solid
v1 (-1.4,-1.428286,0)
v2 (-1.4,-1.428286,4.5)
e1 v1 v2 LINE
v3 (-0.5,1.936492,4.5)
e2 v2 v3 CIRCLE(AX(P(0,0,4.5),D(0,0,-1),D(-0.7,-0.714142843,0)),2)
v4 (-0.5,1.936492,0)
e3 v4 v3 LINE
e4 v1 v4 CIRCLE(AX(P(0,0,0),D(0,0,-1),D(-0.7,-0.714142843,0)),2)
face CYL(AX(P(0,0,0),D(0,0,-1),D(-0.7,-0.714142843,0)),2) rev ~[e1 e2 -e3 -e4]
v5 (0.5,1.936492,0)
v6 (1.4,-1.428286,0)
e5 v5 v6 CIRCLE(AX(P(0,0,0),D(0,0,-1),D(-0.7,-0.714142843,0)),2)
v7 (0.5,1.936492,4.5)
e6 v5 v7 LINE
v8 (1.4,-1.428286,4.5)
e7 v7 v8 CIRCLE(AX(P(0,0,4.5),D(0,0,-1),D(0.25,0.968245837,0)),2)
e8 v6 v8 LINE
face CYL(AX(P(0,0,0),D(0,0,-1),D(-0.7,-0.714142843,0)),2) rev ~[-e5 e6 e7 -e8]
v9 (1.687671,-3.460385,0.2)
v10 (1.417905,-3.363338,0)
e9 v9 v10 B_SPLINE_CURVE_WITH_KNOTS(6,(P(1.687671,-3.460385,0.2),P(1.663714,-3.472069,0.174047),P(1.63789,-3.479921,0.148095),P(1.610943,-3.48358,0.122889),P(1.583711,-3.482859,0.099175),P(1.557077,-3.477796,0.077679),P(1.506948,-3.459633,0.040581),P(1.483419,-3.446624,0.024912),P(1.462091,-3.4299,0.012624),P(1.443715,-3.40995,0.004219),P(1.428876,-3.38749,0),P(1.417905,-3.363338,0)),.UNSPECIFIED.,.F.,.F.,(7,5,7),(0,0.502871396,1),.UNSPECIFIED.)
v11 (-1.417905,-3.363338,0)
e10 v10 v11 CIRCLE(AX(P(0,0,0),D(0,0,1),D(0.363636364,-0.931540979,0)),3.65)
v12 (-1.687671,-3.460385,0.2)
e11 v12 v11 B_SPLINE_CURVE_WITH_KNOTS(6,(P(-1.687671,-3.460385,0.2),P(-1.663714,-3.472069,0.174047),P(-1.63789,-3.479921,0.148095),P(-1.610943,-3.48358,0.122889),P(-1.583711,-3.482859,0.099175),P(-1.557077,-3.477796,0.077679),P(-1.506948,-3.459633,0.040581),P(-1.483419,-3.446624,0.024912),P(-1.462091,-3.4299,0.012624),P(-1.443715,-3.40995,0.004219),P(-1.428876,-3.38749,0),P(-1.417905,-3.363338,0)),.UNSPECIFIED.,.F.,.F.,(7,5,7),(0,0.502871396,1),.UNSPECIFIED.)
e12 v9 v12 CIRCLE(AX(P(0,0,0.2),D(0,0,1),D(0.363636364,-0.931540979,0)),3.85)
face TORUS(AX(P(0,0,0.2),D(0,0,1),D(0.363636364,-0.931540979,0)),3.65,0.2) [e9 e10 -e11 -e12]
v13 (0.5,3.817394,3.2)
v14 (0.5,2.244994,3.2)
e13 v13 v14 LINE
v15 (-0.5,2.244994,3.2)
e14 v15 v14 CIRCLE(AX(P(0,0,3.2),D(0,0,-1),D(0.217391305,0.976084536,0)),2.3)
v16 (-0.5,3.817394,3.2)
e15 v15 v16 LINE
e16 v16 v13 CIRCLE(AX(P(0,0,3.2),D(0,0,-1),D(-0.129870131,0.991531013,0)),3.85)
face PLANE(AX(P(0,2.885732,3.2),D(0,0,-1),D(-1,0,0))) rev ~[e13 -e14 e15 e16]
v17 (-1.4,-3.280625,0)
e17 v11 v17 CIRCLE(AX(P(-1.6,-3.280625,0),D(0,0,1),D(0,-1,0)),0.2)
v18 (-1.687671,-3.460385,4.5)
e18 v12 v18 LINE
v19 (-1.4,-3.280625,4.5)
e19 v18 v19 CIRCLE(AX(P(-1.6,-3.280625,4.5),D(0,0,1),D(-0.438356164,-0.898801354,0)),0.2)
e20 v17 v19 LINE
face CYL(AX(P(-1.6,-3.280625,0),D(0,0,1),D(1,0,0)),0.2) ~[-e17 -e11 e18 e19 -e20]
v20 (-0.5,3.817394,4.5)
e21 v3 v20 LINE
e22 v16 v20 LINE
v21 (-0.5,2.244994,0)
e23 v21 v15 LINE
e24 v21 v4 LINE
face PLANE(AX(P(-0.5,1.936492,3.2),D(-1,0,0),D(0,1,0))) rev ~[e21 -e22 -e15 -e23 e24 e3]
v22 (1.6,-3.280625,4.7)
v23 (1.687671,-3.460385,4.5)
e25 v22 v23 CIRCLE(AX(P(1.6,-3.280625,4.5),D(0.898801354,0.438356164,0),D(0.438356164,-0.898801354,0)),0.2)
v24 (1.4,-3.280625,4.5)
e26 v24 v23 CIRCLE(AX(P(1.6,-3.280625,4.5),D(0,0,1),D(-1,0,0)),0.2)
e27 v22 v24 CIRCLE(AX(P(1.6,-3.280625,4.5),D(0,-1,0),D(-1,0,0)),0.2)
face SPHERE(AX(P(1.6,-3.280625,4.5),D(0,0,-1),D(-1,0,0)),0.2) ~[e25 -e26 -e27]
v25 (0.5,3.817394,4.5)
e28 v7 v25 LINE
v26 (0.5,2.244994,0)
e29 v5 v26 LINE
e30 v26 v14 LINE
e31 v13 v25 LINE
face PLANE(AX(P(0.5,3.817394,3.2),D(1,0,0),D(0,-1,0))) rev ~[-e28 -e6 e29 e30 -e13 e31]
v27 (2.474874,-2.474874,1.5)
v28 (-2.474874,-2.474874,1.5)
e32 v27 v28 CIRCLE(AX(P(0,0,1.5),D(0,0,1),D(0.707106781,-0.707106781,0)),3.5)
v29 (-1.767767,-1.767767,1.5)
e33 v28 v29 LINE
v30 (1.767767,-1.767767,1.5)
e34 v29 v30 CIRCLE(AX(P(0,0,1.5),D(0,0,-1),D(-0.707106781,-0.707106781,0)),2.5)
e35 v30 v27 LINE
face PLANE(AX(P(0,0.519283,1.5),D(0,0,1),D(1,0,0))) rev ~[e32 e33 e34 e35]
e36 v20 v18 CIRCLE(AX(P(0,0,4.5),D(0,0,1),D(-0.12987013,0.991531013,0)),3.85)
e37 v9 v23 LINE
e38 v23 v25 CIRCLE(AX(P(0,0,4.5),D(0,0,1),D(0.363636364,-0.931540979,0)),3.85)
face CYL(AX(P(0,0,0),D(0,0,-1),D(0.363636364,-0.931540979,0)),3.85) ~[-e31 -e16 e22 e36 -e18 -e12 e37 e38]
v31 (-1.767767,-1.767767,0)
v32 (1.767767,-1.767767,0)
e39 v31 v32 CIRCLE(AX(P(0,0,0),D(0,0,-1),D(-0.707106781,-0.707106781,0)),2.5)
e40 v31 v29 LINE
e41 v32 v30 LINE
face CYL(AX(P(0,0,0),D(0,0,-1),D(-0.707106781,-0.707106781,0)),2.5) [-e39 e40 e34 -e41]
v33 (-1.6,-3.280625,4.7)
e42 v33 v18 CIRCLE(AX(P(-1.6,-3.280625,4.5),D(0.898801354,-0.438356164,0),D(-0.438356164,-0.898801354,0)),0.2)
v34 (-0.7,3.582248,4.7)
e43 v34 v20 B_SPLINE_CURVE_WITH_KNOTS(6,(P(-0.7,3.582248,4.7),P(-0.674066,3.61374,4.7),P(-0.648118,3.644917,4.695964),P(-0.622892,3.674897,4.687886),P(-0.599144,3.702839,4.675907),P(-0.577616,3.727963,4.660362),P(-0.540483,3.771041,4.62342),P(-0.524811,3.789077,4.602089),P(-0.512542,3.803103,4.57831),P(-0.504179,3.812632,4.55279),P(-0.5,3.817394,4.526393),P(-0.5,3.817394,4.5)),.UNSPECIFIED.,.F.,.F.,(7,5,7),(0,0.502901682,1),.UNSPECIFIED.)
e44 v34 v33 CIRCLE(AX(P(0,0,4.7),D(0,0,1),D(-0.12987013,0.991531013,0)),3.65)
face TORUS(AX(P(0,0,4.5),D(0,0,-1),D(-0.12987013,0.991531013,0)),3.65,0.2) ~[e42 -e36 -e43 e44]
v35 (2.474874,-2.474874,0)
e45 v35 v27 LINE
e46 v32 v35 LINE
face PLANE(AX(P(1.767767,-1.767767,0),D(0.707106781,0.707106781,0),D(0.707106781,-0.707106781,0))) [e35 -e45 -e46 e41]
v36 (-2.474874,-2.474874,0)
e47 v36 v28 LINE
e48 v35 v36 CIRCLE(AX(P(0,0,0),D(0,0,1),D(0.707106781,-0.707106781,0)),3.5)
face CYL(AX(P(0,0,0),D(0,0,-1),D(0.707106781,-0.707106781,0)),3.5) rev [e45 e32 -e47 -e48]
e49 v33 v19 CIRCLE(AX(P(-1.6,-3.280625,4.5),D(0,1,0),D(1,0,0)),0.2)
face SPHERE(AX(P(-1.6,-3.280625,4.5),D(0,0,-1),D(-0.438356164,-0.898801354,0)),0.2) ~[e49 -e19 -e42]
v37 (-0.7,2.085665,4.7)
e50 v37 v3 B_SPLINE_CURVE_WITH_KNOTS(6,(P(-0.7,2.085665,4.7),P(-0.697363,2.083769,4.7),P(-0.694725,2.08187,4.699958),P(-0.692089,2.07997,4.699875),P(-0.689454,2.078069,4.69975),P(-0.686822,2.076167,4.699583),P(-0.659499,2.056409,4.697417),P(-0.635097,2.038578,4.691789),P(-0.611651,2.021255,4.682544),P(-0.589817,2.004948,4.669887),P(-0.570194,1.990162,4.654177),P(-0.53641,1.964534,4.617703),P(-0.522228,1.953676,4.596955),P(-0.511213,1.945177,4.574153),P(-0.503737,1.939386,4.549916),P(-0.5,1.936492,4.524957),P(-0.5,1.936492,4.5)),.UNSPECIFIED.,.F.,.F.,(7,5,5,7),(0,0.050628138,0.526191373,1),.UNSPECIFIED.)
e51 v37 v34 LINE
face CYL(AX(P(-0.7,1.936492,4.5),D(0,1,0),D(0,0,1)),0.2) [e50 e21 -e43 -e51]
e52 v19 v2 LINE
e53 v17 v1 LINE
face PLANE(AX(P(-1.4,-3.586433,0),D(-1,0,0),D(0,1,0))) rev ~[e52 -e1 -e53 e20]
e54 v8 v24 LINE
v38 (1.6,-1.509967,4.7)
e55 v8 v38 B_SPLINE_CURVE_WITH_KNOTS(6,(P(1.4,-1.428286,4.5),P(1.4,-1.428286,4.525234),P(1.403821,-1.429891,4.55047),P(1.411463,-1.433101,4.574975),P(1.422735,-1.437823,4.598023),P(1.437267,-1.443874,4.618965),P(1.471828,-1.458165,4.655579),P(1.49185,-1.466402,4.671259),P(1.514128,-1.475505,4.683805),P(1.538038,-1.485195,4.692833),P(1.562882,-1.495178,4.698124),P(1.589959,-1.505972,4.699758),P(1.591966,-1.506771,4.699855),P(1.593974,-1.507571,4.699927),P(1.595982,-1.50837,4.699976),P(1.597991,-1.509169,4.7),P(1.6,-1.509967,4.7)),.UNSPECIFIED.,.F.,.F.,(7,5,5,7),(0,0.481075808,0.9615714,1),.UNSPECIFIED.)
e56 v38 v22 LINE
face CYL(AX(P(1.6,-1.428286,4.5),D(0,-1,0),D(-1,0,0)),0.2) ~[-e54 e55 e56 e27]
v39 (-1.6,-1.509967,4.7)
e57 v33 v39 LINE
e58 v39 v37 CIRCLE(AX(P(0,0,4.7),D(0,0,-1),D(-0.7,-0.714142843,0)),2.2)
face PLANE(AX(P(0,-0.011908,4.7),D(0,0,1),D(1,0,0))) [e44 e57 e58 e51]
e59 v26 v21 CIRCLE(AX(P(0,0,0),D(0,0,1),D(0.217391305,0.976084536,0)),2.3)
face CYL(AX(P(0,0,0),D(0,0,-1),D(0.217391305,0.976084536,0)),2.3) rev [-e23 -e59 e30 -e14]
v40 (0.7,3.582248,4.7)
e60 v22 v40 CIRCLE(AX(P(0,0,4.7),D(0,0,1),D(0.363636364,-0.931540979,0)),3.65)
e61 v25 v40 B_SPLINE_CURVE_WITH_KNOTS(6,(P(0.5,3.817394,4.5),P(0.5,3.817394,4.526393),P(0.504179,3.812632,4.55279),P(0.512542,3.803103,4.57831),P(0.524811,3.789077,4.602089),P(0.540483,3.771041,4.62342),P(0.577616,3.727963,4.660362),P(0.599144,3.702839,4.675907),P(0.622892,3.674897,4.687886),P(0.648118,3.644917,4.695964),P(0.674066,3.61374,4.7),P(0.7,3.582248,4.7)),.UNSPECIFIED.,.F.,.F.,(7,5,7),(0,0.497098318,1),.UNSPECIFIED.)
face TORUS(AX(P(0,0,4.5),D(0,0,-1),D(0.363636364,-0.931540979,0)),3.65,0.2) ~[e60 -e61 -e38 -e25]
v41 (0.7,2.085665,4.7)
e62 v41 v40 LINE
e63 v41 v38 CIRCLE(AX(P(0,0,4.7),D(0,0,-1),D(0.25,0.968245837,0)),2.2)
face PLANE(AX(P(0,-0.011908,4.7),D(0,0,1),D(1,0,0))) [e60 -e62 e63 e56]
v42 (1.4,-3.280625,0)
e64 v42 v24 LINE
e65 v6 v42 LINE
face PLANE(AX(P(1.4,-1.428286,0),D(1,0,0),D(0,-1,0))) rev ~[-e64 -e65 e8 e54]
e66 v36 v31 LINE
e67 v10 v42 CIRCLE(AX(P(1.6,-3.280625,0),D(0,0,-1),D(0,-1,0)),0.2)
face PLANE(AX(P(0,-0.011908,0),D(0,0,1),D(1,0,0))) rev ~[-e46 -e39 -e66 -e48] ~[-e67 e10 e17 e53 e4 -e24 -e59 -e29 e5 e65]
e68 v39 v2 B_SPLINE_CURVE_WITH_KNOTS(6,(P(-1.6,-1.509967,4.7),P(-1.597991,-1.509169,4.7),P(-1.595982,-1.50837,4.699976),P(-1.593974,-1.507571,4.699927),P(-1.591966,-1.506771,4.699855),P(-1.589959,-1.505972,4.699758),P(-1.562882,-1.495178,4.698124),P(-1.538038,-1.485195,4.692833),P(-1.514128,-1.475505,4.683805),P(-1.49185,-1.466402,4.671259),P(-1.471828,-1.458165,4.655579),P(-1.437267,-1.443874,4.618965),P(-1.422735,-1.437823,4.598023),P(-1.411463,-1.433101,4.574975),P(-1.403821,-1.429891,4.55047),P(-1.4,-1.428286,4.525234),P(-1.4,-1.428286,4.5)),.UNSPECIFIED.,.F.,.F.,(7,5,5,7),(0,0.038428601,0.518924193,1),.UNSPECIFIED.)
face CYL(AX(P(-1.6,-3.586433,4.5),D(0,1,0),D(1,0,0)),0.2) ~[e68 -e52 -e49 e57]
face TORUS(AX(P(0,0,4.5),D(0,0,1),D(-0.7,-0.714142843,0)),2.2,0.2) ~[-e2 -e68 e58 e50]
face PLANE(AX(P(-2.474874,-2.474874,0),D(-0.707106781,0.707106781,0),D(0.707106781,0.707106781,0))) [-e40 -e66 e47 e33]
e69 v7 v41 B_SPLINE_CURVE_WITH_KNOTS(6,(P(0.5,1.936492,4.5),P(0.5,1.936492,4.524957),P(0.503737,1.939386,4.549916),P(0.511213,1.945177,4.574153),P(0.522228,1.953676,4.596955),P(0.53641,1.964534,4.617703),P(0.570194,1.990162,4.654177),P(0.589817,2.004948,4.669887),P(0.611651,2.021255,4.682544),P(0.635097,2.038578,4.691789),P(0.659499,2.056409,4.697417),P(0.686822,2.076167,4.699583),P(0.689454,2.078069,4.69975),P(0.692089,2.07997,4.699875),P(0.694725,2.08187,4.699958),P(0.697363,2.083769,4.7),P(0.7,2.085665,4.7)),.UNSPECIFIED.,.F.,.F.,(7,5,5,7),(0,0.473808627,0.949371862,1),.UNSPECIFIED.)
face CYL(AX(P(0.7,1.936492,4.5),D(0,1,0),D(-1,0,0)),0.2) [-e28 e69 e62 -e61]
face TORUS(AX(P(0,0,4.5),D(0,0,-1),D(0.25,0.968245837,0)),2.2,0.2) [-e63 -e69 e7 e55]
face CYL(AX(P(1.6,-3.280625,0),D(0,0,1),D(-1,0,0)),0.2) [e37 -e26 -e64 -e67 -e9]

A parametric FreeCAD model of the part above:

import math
import FreeCAD as App
import Part
import Sketcher


def edges_at(feature, points):
    """Names of the edges that pass closest to the given points."""
    edges = feature.Shape.Edges
    near = lambda p: min(range(len(edges)), key=lambda i: edges[i].distToShape(Part.Vertex(*p))[0])
    return sorted({f"Edge{near(p) + 1}" for p in points})

doc = App.newDocument("Part")
body = doc.addObject("PartDesign::Body", "Body")

# Sketch on XY plane
sketch1 = body.newObject("Sketcher::SketchObject", "Sketch")
sketch1.AttachmentSupport = (doc.getObject("XY_Plane"), [""])
sketch1.MapMode = "FlatFace"
sketch1.addGeometry([
    Part.LineSegment(App.Vector(-1.4, -3.586433, 0), App.Vector(-1.4, -1.428286, 0)),
    Part.ArcOfCircle(Part.Circle(App.Vector(0, 0, 0), App.Vector(0, 0, 1), 2), math.radians(-45.572996), math.radians(225.572996)),
    Part.LineSegment(App.Vector(1.4, -1.428286, 0), App.Vector(1.4, -3.586433, 0)),
    Part.ArcOfCircle(Part.Circle(App.Vector(0, 0, 0), App.Vector(0, 0, 1), 3.85), math.radians(-68.676314), math.radians(248.676314)),
], False)
sketch1.addConstraint([
    Sketcher.Constraint("Coincident", 0, 2, 1, 2),
    Sketcher.Constraint("Coincident", 1, 1, 2, 1),
    Sketcher.Constraint("Coincident", 2, 2, 3, 1),
    Sketcher.Constraint("Coincident", 3, 2, 0, 1),
    Sketcher.Constraint("Vertical", 0),
    Sketcher.Constraint("Vertical", 2),
    Sketcher.Constraint("Coincident", 1, 3, -1, 1),
    Sketcher.Constraint("Coincident", 3, 3, -1, 1),
    Sketcher.Constraint("Horizontal", 0, 2, 1, 1),
    Sketcher.Constraint("Radius", 1, 2.0),
    Sketcher.Constraint("Radius", 3, 3.85),
    Sketcher.Constraint("DistanceX", 0, 2, -1, 1, 1.4),
])
pad1 = body.newObject("PartDesign::Pad", "Pad")
pad1.Profile = sketch1
pad1.Length = 4.7

# Sketch on XY plane
sketch2 = body.newObject("Sketcher::SketchObject", "Sketch001")
sketch2.AttachmentSupport = (doc.getObject("XY_Plane"), [""])
sketch2.MapMode = "FlatFace"
sketch2.AttachmentOffset = App.Placement(App.Vector(0, 0, 3.2), App.Rotation())
sketch2.addGeometry([
    Part.LineSegment(App.Vector(-0.5, 3.817394, 0), App.Vector(-0.5, 1.936492, 0)),
    Part.ArcOfCircle(Part.Circle(App.Vector(0, 0, 0), App.Vector(0, 0, 1), 2), math.radians(75.522488), math.radians(104.477512)),
    Part.LineSegment(App.Vector(0.5, 1.936492, 0), App.Vector(0.5, 3.817394, 0)),
    Part.ArcOfCircle(Part.Circle(App.Vector(0, 0, 0), App.Vector(0, 0, 1), 3.85), math.radians(82.537912), math.radians(97.462088)),
], False)
sketch2.addConstraint([
    Sketcher.Constraint("Coincident", 0, 2, 1, 2),
    Sketcher.Constraint("Coincident", 1, 1, 2, 1),
    Sketcher.Constraint("Coincident", 2, 2, 3, 1),
    Sketcher.Constraint("Coincident", 3, 2, 0, 1),
    Sketcher.Constraint("Vertical", 0),
    Sketcher.Constraint("Vertical", 2),
    Sketcher.Constraint("Coincident", 1, 3, -1, 1),
    Sketcher.Constraint("Coincident", 3, 3, -1, 1),
    Sketcher.Constraint("Horizontal", 0, 2, 1, 1),
    Sketcher.Constraint("Radius", 1, 2.0),
    Sketcher.Constraint("Radius", 3, 3.85),
    Sketcher.Constraint("DistanceX", 0, 2, 1, 1, 1.0),
])
pocket1 = body.newObject("PartDesign::Pocket", "Pocket")
pocket1.Profile = sketch2
pocket1.Length = 1.5
pocket1.Reversed = True

# Sketch on XY plane
sketch3 = body.newObject("Sketcher::SketchObject", "Sketch002")
sketch3.AttachmentSupport = (doc.getObject("XY_Plane"), [""])
sketch3.MapMode = "FlatFace"
sketch3.addGeometry([
    Part.LineSegment(App.Vector(2.474874, -2.474874, 0), App.Vector(1.767767, -1.767767, 0)),
    Part.ArcOfCircle(Part.Circle(App.Vector(0, 0, 0), App.Vector(0, 0, 1), 2.5), math.radians(-45), math.radians(225)),
    Part.LineSegment(App.Vector(-1.767767, -1.767767, 0), App.Vector(-2.474874, -2.474874, 0)),
    Part.ArcOfCircle(Part.Circle(App.Vector(0, 0, 0), App.Vector(0, 0, 1), 3.5), math.radians(-45), math.radians(225)),
], False)
sketch3.addConstraint([
    Sketcher.Constraint("Coincident", 0, 2, 1, 1),
    Sketcher.Constraint("Coincident", 1, 2, 2, 1),
    Sketcher.Constraint("Coincident", 2, 2, 3, 2),
    Sketcher.Constraint("Coincident", 3, 1, 0, 1),
    Sketcher.Constraint("Coincident", 1, 3, -1, 1),
    Sketcher.Constraint("Coincident", 3, 3, -1, 1),
    Sketcher.Constraint("Perpendicular", 0, 2),
    Sketcher.Constraint("Horizontal", 0, 2, 1, 2),
    Sketcher.Constraint("Horizontal", 2, 2, 3, 1),
    Sketcher.Constraint("Radius", 1, 2.5),
    Sketcher.Constraint("Radius", 3, 3.5),
    Sketcher.Constraint("DistanceX", 2, 2, 0, 2, 4.242641),
])
pocket2 = body.newObject("PartDesign::Pocket", "Pocket001")
pocket2.Profile = sketch3
pocket2.Length = 1.5
pocket2.Reversed = True

# Sketch on XY plane
sketch4 = body.newObject("Sketcher::SketchObject", "Sketch003")
sketch4.AttachmentSupport = (doc.getObject("XY_Plane"), [""])
sketch4.MapMode = "FlatFace"
sketch4.addGeometry([
    Part.LineSegment(App.Vector(0.5, 2.244994, 0), App.Vector(0.5, 1.936492, 0)),
    Part.ArcOfCircle(Part.Circle(App.Vector(0, 0, 0), App.Vector(0, 0, 1), 2), math.radians(75.522488), math.radians(104.477512)),
    Part.LineSegment(App.Vector(-0.5, 1.936492, 0), App.Vector(-0.5, 2.244994, 0)),
    Part.ArcOfCircle(Part.Circle(App.Vector(0, 0, 0), App.Vector(0, 0, 1), 2.3), math.radians(77.444142), math.radians(102.555858)),
], False)
sketch4.addConstraint([
    Sketcher.Constraint("Coincident", 0, 2, 1, 1),
    Sketcher.Constraint("Coincident", 1, 2, 2, 1),
    Sketcher.Constraint("Coincident", 2, 2, 3, 2),
    Sketcher.Constraint("Coincident", 3, 1, 0, 1),
    Sketcher.Constraint("Vertical", 0),
    Sketcher.Constraint("Vertical", 2),
    Sketcher.Constraint("Coincident", 1, 3, -1, 1),
    Sketcher.Constraint("Coincident", 3, 3, -1, 1),
    Sketcher.Constraint("Horizontal", 0, 2, 1, 2),
    Sketcher.Constraint("Radius", 1, 2.0),
    Sketcher.Constraint("Radius", 3, 2.3),
    Sketcher.Constraint("DistanceX", 1, 2, 0, 2, 1.0),
])
pocket3 = body.newObject("PartDesign::Pocket", "Pocket002")
pocket3.Profile = sketch4
pocket3.Type = "ThroughAll"
pocket3.Reversed = True
doc.recompute()

fillet = body.newObject("PartDesign::Fillet", "Fillet")
fillet.Base = (pocket3, edges_at(pocket3, [
    (-1.932, 0.517, 4.7),
    (1.4, -2.507, 4.7),
    (-3.822, 0.465, 4.7),
    (1.932, 0.517, 4.7),
    (0.5, 2.877, 4.7),
    (-0.5, 2.877, 4.7),
    (3.822, 0.465, 4.7),
    (0, 3.85, 0),
    (-1.4, -2.507, 4.7),
    (1.4, -3.586, 2.35),
    (-1.4, -3.586, 2.35),
]))
fillet.Radius = 0.2

doc.recompute()
